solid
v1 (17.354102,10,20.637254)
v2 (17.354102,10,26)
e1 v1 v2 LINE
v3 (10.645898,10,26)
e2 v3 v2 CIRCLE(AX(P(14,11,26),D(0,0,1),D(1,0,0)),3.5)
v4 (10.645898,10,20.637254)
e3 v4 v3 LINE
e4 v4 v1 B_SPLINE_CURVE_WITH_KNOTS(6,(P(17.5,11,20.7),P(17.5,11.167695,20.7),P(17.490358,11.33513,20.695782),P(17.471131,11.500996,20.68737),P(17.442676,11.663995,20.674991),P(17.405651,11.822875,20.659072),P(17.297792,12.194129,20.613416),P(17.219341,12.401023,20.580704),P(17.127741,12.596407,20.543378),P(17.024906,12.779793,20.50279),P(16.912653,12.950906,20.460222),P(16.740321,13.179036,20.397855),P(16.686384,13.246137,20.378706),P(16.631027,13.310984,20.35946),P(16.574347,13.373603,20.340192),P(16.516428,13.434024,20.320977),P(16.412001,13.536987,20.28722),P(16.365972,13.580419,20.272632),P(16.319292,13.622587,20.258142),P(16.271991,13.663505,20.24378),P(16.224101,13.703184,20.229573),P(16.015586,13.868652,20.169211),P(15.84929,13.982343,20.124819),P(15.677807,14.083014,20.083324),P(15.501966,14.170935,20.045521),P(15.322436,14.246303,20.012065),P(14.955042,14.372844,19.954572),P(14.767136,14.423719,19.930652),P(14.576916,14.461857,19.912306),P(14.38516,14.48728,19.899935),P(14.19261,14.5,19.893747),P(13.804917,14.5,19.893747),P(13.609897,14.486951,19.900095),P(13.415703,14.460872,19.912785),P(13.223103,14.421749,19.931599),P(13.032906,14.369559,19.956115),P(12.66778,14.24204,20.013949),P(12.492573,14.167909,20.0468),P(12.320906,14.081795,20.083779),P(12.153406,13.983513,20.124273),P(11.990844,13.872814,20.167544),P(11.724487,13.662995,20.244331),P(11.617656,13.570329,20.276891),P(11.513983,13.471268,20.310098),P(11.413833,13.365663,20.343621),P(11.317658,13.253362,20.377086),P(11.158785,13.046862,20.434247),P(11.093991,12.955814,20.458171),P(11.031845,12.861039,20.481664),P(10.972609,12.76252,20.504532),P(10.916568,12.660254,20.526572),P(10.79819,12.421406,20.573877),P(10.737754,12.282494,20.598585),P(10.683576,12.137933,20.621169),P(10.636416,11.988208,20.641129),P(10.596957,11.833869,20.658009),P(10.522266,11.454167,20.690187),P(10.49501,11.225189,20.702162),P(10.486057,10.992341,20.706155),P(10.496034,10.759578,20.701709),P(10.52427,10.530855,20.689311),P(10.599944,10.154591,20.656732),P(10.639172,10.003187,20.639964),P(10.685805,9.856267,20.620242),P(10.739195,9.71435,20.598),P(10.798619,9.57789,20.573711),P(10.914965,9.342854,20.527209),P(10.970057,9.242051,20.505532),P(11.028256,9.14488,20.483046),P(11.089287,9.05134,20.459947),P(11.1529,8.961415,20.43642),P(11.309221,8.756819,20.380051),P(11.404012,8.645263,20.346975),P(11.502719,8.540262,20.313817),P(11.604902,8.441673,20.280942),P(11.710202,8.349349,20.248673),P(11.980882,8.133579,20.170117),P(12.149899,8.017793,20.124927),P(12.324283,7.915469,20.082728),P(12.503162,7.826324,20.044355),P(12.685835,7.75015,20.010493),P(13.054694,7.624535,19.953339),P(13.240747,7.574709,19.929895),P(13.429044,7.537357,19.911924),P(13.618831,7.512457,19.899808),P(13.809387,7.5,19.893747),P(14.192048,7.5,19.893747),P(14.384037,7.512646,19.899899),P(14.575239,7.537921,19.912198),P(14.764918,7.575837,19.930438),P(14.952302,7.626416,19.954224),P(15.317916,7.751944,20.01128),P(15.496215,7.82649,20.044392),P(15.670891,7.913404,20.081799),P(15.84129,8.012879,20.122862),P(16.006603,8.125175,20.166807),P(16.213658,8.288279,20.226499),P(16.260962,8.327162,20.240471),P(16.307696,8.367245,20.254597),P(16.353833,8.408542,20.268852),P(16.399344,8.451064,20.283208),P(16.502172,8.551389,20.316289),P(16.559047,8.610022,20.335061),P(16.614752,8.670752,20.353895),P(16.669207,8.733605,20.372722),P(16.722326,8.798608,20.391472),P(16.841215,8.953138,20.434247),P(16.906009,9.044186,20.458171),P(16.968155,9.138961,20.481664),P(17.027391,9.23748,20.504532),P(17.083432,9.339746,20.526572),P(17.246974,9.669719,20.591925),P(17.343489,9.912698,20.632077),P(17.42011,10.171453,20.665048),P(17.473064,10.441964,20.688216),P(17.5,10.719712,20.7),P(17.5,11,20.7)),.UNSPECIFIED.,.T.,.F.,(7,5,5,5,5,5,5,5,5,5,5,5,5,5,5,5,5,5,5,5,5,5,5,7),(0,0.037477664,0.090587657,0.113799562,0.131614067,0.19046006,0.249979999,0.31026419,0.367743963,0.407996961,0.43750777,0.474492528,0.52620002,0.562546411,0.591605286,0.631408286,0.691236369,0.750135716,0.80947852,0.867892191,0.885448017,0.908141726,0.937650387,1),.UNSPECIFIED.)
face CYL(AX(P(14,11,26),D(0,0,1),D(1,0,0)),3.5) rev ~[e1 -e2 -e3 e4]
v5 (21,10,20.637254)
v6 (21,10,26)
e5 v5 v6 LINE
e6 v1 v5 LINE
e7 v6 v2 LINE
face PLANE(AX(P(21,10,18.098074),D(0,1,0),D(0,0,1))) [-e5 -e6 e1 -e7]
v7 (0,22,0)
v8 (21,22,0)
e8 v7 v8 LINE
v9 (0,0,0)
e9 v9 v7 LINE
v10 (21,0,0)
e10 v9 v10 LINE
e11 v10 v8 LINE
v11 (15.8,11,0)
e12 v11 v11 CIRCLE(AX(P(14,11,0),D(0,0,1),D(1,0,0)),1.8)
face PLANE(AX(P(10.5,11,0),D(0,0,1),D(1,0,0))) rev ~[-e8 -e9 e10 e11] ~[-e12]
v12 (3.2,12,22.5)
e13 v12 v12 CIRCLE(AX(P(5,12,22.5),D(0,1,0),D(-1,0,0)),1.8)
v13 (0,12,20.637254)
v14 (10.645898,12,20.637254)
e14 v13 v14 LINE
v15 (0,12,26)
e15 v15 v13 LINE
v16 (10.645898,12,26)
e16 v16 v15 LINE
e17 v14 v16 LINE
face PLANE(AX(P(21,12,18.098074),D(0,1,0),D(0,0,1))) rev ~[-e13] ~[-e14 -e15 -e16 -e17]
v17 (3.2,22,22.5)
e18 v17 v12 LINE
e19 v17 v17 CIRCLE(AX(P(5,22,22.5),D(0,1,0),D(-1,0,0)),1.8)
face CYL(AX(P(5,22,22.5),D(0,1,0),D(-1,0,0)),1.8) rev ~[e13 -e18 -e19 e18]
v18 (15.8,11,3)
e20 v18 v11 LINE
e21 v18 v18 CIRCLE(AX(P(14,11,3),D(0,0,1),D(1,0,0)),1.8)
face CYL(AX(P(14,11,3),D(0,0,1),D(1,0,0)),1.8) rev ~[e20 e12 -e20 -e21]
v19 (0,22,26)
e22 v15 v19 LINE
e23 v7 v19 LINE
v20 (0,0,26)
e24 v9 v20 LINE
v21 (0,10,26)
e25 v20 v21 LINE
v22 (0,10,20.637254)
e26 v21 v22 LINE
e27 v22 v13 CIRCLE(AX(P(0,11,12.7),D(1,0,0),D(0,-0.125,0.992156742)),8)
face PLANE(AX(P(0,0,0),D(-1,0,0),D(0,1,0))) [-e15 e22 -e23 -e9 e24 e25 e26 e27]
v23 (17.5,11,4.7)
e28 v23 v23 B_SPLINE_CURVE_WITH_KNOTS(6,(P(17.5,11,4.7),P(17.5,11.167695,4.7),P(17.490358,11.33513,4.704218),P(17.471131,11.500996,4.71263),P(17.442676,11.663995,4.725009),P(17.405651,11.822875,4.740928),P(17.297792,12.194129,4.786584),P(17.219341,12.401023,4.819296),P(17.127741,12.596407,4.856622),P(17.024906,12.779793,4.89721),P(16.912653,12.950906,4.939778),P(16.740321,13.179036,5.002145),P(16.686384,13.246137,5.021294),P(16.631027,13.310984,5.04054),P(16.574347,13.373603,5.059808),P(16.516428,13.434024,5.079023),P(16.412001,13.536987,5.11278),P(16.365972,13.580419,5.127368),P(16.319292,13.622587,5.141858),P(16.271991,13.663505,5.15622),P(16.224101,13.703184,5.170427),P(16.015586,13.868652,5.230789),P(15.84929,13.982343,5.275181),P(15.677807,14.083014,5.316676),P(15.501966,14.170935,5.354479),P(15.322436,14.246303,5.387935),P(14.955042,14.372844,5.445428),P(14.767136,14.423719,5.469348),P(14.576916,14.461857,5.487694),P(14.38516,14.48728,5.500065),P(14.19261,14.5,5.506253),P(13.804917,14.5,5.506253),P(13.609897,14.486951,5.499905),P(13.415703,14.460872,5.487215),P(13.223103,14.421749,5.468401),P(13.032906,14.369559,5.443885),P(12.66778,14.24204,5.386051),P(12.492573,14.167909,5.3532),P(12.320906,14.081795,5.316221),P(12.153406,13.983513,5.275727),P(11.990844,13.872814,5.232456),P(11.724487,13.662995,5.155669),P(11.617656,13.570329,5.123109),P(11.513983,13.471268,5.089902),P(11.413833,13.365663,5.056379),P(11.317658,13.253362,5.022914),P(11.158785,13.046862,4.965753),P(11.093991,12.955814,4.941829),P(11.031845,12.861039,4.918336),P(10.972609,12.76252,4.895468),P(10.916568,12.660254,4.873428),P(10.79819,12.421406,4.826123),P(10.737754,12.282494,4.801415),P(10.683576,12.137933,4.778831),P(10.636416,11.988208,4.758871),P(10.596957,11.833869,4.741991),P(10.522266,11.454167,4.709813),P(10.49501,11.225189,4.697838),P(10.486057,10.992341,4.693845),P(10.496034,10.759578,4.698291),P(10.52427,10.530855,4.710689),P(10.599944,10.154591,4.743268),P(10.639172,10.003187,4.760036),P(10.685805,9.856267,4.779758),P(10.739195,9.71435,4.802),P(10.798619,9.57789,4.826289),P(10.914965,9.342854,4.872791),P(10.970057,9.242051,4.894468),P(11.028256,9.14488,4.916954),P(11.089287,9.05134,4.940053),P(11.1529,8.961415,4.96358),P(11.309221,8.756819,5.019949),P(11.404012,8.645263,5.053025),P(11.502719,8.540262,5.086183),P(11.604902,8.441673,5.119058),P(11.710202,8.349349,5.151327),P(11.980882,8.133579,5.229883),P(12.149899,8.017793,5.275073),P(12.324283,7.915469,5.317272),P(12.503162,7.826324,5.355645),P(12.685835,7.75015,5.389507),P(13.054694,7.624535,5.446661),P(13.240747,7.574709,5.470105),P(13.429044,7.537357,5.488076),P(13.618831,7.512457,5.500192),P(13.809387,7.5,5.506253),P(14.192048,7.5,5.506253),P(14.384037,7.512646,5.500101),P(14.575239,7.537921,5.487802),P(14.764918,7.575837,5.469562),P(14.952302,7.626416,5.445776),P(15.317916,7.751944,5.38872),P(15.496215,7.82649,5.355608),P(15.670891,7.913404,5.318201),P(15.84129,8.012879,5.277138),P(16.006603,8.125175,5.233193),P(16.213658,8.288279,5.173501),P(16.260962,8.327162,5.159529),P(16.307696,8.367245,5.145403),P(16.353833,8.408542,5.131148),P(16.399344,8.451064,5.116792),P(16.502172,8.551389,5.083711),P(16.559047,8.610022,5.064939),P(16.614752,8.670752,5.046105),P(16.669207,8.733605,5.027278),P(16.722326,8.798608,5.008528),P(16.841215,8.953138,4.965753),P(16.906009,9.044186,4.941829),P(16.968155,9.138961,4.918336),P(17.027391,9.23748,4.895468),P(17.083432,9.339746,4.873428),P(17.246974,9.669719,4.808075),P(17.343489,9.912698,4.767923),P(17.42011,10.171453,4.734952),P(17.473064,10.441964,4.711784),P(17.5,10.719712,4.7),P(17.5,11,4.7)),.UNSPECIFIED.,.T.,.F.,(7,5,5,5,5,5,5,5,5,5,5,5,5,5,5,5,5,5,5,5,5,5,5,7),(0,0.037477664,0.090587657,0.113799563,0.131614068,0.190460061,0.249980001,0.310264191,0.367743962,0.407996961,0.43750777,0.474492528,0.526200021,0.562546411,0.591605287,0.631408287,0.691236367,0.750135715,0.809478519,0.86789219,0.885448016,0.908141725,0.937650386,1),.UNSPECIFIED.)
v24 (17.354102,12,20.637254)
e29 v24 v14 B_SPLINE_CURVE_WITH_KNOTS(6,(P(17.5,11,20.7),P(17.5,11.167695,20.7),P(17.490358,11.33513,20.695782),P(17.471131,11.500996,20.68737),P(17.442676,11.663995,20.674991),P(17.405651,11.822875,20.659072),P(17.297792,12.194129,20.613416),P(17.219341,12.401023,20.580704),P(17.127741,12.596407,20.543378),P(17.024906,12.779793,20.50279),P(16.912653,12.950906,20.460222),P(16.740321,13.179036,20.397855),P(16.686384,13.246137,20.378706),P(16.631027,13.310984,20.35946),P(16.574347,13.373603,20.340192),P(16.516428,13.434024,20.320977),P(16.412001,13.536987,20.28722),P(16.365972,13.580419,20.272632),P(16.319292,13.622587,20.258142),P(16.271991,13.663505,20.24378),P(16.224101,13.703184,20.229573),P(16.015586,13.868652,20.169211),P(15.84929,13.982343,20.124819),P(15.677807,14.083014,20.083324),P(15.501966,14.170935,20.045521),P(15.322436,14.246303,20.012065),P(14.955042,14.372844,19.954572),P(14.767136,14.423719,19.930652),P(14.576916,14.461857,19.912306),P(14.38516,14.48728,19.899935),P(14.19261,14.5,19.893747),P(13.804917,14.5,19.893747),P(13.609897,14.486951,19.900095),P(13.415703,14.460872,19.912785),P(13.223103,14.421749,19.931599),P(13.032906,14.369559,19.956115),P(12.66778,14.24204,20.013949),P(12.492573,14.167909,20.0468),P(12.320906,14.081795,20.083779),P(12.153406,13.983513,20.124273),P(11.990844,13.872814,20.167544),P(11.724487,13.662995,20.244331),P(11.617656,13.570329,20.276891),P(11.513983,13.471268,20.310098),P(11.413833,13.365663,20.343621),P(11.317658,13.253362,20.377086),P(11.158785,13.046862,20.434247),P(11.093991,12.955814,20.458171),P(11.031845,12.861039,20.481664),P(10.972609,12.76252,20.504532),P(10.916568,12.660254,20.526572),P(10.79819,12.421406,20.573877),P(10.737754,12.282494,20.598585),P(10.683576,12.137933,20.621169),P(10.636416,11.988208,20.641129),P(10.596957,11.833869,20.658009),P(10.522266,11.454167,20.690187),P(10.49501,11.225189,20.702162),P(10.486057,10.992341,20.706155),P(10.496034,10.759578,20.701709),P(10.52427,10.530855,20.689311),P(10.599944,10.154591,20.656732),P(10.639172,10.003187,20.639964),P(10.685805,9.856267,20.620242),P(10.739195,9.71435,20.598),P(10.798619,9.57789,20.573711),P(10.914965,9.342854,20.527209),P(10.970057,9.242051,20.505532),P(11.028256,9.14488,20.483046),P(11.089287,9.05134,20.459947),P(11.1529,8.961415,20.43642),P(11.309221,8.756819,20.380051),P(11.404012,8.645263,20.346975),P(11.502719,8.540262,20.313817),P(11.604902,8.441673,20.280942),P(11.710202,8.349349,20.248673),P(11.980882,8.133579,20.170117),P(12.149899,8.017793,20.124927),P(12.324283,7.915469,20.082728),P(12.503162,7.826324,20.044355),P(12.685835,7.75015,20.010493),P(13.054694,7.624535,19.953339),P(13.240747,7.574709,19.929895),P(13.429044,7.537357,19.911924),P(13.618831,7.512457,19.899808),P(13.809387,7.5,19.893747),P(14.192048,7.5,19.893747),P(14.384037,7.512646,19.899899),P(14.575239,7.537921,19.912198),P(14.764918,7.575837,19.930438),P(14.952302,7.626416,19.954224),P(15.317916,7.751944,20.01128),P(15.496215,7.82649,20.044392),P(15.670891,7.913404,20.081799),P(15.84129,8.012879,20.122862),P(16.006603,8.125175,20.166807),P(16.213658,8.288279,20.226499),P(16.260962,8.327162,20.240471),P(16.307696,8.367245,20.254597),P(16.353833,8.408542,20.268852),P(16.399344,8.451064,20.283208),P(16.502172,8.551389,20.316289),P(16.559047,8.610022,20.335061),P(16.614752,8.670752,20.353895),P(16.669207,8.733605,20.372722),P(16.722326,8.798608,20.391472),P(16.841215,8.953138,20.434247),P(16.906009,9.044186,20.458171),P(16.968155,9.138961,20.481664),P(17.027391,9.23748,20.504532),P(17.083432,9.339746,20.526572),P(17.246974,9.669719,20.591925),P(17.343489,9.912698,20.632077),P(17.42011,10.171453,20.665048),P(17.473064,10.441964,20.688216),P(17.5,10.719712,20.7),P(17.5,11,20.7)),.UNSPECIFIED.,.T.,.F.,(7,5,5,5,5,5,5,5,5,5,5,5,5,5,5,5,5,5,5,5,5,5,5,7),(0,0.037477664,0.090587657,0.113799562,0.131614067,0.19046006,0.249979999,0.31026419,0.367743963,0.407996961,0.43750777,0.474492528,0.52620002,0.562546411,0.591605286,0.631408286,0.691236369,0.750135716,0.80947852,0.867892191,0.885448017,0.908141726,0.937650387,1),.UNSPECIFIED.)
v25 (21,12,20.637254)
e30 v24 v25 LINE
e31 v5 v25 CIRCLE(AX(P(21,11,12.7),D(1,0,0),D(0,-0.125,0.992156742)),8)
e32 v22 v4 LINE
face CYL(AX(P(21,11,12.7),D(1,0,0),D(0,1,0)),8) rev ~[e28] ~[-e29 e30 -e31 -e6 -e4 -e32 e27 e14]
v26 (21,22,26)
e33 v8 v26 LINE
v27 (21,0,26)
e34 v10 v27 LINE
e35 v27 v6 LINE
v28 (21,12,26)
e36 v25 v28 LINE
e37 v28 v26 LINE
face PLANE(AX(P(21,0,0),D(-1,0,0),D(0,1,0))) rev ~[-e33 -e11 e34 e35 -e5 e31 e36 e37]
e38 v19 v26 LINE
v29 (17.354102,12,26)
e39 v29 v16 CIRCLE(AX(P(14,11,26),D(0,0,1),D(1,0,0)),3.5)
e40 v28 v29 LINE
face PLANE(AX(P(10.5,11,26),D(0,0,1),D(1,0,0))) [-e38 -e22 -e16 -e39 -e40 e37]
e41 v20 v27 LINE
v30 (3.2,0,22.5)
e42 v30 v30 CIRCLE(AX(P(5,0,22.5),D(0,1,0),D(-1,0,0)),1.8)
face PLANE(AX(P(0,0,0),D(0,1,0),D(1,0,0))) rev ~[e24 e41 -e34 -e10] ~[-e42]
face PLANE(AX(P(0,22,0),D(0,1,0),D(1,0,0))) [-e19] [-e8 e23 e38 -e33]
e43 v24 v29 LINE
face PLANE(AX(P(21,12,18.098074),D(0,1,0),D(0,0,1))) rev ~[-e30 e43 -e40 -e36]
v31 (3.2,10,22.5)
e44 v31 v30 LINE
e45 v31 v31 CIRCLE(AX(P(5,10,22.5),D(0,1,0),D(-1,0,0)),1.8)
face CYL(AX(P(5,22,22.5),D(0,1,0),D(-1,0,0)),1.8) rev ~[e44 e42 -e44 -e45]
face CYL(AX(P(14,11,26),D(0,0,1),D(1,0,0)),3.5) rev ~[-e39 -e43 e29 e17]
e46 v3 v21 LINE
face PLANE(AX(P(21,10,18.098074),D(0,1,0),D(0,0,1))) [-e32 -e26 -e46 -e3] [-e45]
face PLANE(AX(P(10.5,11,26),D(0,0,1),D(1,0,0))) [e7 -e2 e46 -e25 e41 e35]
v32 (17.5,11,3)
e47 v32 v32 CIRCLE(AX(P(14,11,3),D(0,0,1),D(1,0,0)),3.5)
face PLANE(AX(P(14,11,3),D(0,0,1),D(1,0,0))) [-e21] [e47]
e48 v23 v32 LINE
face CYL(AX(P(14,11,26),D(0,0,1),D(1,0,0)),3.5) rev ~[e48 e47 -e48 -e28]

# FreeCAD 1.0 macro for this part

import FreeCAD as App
import Part
import Sketcher
from FreeCAD import Vector


def add_polygon(sketch, points):
    """Adds a closed chain of lines whose ends are joined by coincident constraints."""
    first, n = sketch.GeometryCount, len(points)
    for a, b in zip(points, points[1:] + points[:1]):
        sketch.addGeometry(Part.LineSegment(App.Vector(*a, 0), App.Vector(*b, 0)), False)
    for i in range(n):
        sketch.addConstraint(Sketcher.Constraint("Coincident", first + i, 2, first + (i + 1) % n, 1))

doc = App.newDocument("Part")
body = doc.addObject("PartDesign::Body", "Body")

# Sketch on XY plane
sketch1 = doc.addObject("Sketcher::SketchObject", "Sketch")
body.addObject(sketch1)
sketch1.AttachmentSupport = (doc.XY_Plane, [""])
sketch1.MapMode = "FlatFace"
add_polygon(sketch1, [(0, 22), (0, 0), (21, 0), (21, 22)])  # lines 0-3
sketch1.addConstraint([
    Sketcher.Constraint("Vertical", 0),
    Sketcher.Constraint("Horizontal", 1),
    Sketcher.Constraint("Vertical", 2),
    Sketcher.Constraint("Horizontal", 3),
    Sketcher.Constraint("Coincident", 0, 2, -1, 1),
    Sketcher.Constraint("DistanceX", 1, 1, 1, 2, 21.0),
    Sketcher.Constraint("DistanceY", 0, 2, 0, 1, 22.0),
])
pad1 = doc.addObject("PartDesign::Pad", "Pad")
body.addObject(pad1)
pad1.Profile = sketch1
pad1.Length = 26

# Sketch on YZ plane
sketch2 = doc.addObject("Sketcher::SketchObject", "Sketch001")
body.addObject(sketch2)
sketch2.AttachmentSupport = (doc.YZ_Plane, [""])
sketch2.MapMode = "FlatFace"
sketch2.AttachmentOffset = App.Placement(Vector(0, 0, 21), App.Rotation())
sketch2.addGeometry(Part.Circle(Vector(11, 13, 0), Vector(0, 0, 1), 8), False)
sketch2.addConstraint([
    Sketcher.Constraint("Diameter", 0, 16.0),
    Sketcher.Constraint("DistanceX", -1, 1, 0, 3, 11.0),
    Sketcher.Constraint("DistanceY", -1, 1, 0, 3, 12.7),
])
pocket1 = doc.addObject("PartDesign::Pocket", "Pocket")
body.addObject(pocket1)
pocket1.Profile = sketch2
pocket1.Type = "ThroughAll"

# Sketch on XY plane
sketch3 = doc.addObject("Sketcher::SketchObject", "Sketch002")
body.addObject(sketch3)
sketch3.AttachmentSupport = (doc.XY_Plane, [""])
sketch3.MapMode = "FlatFace"
sketch3.AttachmentOffset = App.Placement(Vector(0, 0, 26), App.Rotation())
sketch3.addGeometry(Part.Circle(Vector(14, 11, 0), Vector(0, 0, 1), 3.5), False)
sketch3.addConstraint([
    Sketcher.Constraint("Diameter", 0, 7.0),
    Sketcher.Constraint("DistanceX", -1, 1, 0, 3, 14.0),
    Sketcher.Constraint("DistanceY", -1, 1, 0, 3, 11.0),
])
pocket2 = doc.addObject("PartDesign::Pocket", "Pocket001")
body.addObject(pocket2)
pocket2.Profile = sketch3
pocket2.Length = 23

# Sketch on XY plane
sketch4 = doc.addObject("Sketcher::SketchObject", "Sketch003")
body.addObject(sketch4)
sketch4.AttachmentSupport = (doc.XY_Plane, [""])
sketch4.MapMode = "FlatFace"
sketch4.AttachmentOffset = App.Placement(Vector(0, 0, 3), App.Rotation())
sketch4.addGeometry(Part.Circle(Vector(14, 11, 0), Vector(0, 0, 1), 1.8), False)
sketch4.addConstraint([
    Sketcher.Constraint("Diameter", 0, 3.6),
    Sketcher.Constraint("DistanceX", -1, 1, 0, 3, 14.0),
    Sketcher.Constraint("DistanceY", -1, 1, 0, 3, 11.0),
])
pocket3 = doc.addObject("PartDesign::Pocket", "Pocket002")
body.addObject(pocket3)
pocket3.Profile = sketch4
pocket3.Length = 5

# Sketch on XZ plane
sketch5 = doc.addObject("Sketcher::SketchObject", "Sketch004")
body.addObject(sketch5)
sketch5.AttachmentSupport = (doc.XZ_Plane, [""])
sketch5.MapMode = "FlatFace"
sketch5.AttachmentOffset = App.Placement(Vector(0, 0, -22), App.Rotation())
sketch5.addGeometry(Part.Circle(Vector(5, 22.5, 0), Vector(0, 0, 1), 1.8), False)
sketch5.addConstraint([
    Sketcher.Constraint("Diameter", 0, 3.6),
    Sketcher.Constraint("DistanceX", -1, 1, 0, 3, 5.0),
    Sketcher.Constraint("DistanceY", -1, 1, 0, 3, 22.5),
])
pocket4 = doc.addObject("PartDesign::Pocket", "Pocket003")
body.addObject(pocket4)
pocket4.Profile = sketch5
pocket4.Type = "ThroughAll"
pocket4.Reversed = True

# Sketch on YZ plane
sketch6 = doc.addObject("Sketcher::SketchObject", "Sketch005")
body.addObject(sketch6)
sketch6.AttachmentSupport = (doc.YZ_Plane, [""])
sketch6.MapMode = "FlatFace"
sketch6.AttachmentOffset = App.Placement(Vector(0, 0, 21), App.Rotation())
add_polygon(sketch6, [(10, 29.4), (10, 18.1), (12, 18.1), (12, 29.4)])  # lines 0-3
sketch6.addConstraint([
    Sketcher.Constraint("Vertical", 0),
    Sketcher.Constraint("Horizontal", 1),
    Sketcher.Constraint("Vertical", 2),
    Sketcher.Constraint("Horizontal", 3),
    Sketcher.Constraint("DistanceX", 1, 1, 1, 2, 2.0),
    Sketcher.Constraint("DistanceX", -1, 1, 0, 2, 10.0),
    Sketcher.Constraint("DistanceY", 0, 2, 0, 1, 11.298807),
    Sketcher.Constraint("DistanceY", -1, 1, 2, 2, 29.396881),
])
pocket5 = doc.addObject("PartDesign::Pocket", "Pocket004")
body.addObject(pocket5)
pocket5.Profile = sketch6
pocket5.Type = "ThroughAll"

doc.recompute()
